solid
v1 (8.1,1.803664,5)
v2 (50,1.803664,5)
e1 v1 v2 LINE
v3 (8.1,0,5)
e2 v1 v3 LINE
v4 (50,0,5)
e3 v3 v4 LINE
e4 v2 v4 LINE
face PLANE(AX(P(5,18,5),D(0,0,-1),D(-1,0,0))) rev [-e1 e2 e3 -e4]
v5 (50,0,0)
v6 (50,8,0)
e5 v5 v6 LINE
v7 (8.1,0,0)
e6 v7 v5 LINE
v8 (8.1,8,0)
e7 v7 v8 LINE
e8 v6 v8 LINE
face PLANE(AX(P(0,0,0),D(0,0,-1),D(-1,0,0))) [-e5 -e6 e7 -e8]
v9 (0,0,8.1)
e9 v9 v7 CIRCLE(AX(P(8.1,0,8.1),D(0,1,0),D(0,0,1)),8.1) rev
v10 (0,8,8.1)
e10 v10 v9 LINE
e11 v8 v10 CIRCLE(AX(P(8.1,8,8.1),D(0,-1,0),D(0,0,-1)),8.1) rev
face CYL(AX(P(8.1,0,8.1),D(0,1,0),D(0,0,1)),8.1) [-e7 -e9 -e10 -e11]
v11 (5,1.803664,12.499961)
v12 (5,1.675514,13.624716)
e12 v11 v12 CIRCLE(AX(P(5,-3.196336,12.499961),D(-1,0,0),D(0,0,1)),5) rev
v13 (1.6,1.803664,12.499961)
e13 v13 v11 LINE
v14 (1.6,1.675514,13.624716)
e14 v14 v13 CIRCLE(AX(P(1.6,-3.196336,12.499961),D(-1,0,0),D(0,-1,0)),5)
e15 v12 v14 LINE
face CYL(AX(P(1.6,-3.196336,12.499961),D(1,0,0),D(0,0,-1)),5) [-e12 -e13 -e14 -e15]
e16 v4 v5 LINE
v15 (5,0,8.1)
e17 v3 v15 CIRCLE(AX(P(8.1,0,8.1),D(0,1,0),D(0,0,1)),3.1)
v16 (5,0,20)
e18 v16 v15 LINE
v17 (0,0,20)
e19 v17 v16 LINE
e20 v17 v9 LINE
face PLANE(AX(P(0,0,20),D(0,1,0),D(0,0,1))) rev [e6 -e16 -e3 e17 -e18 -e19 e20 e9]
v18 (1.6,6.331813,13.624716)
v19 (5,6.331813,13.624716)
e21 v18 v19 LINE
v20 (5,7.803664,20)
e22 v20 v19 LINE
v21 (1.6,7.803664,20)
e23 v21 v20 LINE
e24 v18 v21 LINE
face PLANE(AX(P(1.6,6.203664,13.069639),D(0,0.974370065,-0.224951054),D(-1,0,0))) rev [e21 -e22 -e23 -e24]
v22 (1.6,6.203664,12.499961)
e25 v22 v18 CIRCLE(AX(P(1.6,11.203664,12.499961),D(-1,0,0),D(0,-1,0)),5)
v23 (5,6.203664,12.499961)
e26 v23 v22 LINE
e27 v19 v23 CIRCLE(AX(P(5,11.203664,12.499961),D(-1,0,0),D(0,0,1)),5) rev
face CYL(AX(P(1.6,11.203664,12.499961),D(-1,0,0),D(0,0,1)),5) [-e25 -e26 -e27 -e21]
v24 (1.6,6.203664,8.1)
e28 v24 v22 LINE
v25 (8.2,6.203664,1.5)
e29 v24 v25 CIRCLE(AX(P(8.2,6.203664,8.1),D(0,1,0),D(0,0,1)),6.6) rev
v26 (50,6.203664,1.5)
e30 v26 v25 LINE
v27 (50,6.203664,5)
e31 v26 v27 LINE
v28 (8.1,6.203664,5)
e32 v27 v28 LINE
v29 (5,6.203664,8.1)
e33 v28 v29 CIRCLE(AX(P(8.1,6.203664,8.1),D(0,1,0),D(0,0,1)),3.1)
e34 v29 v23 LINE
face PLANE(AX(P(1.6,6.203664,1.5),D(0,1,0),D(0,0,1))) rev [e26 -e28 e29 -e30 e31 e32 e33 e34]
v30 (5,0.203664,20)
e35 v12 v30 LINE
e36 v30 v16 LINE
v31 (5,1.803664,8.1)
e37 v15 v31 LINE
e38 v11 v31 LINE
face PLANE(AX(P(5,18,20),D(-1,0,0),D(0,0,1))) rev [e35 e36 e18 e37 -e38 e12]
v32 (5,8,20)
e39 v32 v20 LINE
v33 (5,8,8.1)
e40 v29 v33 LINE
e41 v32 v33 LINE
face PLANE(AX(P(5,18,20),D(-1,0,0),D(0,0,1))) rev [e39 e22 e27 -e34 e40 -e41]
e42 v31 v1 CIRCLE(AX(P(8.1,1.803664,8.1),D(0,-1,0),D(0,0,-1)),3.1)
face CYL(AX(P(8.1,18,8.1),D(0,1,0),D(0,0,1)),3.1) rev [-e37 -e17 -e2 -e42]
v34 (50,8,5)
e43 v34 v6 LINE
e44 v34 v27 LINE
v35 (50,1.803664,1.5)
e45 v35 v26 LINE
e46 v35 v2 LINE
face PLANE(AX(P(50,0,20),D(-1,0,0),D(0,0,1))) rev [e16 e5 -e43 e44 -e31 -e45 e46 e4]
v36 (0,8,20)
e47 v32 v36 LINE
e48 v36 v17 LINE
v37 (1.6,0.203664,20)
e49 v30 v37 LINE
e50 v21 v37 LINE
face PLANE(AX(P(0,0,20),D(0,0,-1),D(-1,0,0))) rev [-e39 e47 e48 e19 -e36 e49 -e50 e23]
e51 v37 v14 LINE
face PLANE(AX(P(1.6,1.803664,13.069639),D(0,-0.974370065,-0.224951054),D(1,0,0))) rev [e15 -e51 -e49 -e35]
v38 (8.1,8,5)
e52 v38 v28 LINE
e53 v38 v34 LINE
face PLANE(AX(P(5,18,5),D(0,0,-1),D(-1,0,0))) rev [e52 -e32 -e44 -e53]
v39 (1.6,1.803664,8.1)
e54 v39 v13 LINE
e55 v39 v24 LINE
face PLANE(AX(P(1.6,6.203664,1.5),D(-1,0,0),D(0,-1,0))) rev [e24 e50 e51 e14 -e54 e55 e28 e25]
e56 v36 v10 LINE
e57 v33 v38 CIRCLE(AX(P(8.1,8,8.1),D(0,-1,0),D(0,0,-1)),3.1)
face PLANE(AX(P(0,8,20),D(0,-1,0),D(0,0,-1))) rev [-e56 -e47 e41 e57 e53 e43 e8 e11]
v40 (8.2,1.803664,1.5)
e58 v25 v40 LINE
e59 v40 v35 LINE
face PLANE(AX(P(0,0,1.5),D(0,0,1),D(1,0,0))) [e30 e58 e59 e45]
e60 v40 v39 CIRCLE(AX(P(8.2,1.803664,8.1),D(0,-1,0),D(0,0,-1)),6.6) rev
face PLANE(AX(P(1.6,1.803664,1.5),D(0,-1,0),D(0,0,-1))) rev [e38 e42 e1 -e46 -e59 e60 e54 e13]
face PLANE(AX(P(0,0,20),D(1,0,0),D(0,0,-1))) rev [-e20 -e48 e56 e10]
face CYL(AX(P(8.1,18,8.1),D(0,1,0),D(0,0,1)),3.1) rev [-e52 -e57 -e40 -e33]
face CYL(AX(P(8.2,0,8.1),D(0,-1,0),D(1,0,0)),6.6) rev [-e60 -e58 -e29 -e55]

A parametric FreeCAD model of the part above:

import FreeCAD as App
import Part
import Sketcher
Q = App.Units.Quantity


def edges_at(feature, points):
    """Names of the edges that pass closest to the given points."""
    edges = feature.Shape.Edges
    near = lambda p: min(range(len(edges)), key=lambda i: edges[i].distToShape(Part.Vertex(*p))[0])
    return sorted({f"Edge{near(p) + 1}" for p in points})


def add_polygon(sketch, points):
    """Adds a closed chain of lines whose ends are joined by coincident constraints."""
    first, n = sketch.GeometryCount, len(points)
    for a, b in zip(points, points[1:] + points[:1]):
        sketch.addGeometry(Part.LineSegment(App.Vector(*a, 0), App.Vector(*b, 0)), False)
    for i in range(n):
        sketch.addConstraint(Sketcher.Constraint("Coincident", first + i, 2, first + (i + 1) % n, 1))

doc = App.newDocument("Part")
body = doc.addObject("PartDesign::Body", "Body")

# Sketch on XY plane
sketch1 = body.newObject("Sketcher::SketchObject", "Sketch")
sketch1.AttachmentSupport = (doc.getObject("XY_Plane"), [""])
sketch1.MapMode = "FlatFace"
add_polygon(sketch1, [(0, 8), (0, 0), (50, 0), (50, 8)])  # lines 0-3
sketch1.addConstraint([
    Sketcher.Constraint("Vertical", 0),
    Sketcher.Constraint("Horizontal", 1),
    Sketcher.Constraint("Vertical", 2),
    Sketcher.Constraint("Horizontal", 3),
    Sketcher.Constraint("Coincident", 0, 2, -1, 1),
    Sketcher.Constraint("DistanceX", 1, 1, 1, 2, Q("50 mm")),
    Sketcher.Constraint("DistanceY", 0, 2, 0, 1, Q("8 mm")),
])
pad1 = body.newObject("PartDesign::Pad", "Pad")
pad1.Profile = sketch1
pad1.Length = 20

# Sketch on XY plane
sketch2 = body.newObject("Sketcher::SketchObject", "Sketch001")
sketch2.AttachmentSupport = (doc.getObject("XY_Plane"), [""])
sketch2.MapMode = "FlatFace"
sketch2.AttachmentOffset = App.Placement(App.Vector(0, 0, 20), App.Rotation())
add_polygon(sketch2, [(1.6, 6.2), (1.6, 1.8), (50, 1.8), (50, 6.2)])  # lines 0-3
sketch2.addConstraint([
    Sketcher.Constraint("Vertical", 0),
    Sketcher.Constraint("Horizontal", 1),
    Sketcher.Constraint("Vertical", 2),
    Sketcher.Constraint("Horizontal", 3),
    Sketcher.Constraint("DistanceX", 1, 1, 1, 2, Q("48.4 mm")),
    Sketcher.Constraint("DistanceY", 0, 2, 0, 1, Q("4.4 mm")),
    Sketcher.Constraint("DistanceX", -1, 1, 1, 2, Q("50 mm")),
    Sketcher.Constraint("DistanceY", -1, 1, 0, 2, Q("1.803664 mm")),
])
pocket1 = body.newObject("PartDesign::Pocket", "Pocket")
pocket1.Profile = sketch2
pocket1.Length = 18.5

# Sketch on XZ plane
sketch3 = body.newObject("Sketcher::SketchObject", "Sketch002")
sketch3.AttachmentSupport = (doc.getObject("XZ_Plane"), [""])
sketch3.MapMode = "FlatFace"
add_polygon(sketch3, [(50, 5), (50, 20), (5, 20), (5, 5)])  # lines 0-3
sketch3.addConstraint([
    Sketcher.Constraint("Vertical", 0),
    Sketcher.Constraint("Horizontal", 1),
    Sketcher.Constraint("Vertical", 2),
    Sketcher.Constraint("Horizontal", 3),
    Sketcher.Constraint("DistanceX", 1, 2, 1, 1, Q("45 mm")),
    Sketcher.Constraint("DistanceY", 0, 1, 0, 2, Q("15 mm")),
    Sketcher.Constraint("DistanceX", -1, 1, 0, 2, Q("50 mm")),
    Sketcher.Constraint("DistanceY", -1, 1, 0, 2, Q("20 mm")),
])
pocket2 = body.newObject("PartDesign::Pocket", "Pocket001")
pocket2.Profile = sketch3
pocket2.Length = 18
doc.recompute()

fillet = body.newObject("PartDesign::Fillet", "Fillet")
fillet.Base = (pocket2, edges_at(pocket2, [(1.6, 4.004, 1.5)]))
fillet.Radius = 6.6
doc.recompute()

fillet2 = body.newObject("PartDesign::Fillet", "Fillet001")
fillet2.Base = (fillet, edges_at(fillet, [(0, 4, 0)]))
fillet2.Radius = 8.1
doc.recompute()

fillet3 = body.newObject("PartDesign::Fillet", "Fillet002")
fillet3.Base = (fillet2, edges_at(fillet2, [(5, 7.102, 5), (5, 0.902, 5)]))
fillet3.Radius = 3.1
doc.recompute()

chamfer = body.newObject("PartDesign::Chamfer", "Chamfer")
chamfer.Base = (fillet3, edges_at(fillet3, [(3.3, 1.804, 20), (3.3, 6.204, 20)]))
chamfer.ChamferType = "Two distances"
chamfer.Size = 1.6
chamfer.Size2 = 6.930361
doc.recompute()

fillet4 = body.newObject("PartDesign::Fillet", "Fillet003")
fillet4.Base = (chamfer, edges_at(chamfer, [(3.3, 1.804, 13.07), (3.3, 6.204, 13.07)]))
fillet4.Radius = 5

doc.recompute()
